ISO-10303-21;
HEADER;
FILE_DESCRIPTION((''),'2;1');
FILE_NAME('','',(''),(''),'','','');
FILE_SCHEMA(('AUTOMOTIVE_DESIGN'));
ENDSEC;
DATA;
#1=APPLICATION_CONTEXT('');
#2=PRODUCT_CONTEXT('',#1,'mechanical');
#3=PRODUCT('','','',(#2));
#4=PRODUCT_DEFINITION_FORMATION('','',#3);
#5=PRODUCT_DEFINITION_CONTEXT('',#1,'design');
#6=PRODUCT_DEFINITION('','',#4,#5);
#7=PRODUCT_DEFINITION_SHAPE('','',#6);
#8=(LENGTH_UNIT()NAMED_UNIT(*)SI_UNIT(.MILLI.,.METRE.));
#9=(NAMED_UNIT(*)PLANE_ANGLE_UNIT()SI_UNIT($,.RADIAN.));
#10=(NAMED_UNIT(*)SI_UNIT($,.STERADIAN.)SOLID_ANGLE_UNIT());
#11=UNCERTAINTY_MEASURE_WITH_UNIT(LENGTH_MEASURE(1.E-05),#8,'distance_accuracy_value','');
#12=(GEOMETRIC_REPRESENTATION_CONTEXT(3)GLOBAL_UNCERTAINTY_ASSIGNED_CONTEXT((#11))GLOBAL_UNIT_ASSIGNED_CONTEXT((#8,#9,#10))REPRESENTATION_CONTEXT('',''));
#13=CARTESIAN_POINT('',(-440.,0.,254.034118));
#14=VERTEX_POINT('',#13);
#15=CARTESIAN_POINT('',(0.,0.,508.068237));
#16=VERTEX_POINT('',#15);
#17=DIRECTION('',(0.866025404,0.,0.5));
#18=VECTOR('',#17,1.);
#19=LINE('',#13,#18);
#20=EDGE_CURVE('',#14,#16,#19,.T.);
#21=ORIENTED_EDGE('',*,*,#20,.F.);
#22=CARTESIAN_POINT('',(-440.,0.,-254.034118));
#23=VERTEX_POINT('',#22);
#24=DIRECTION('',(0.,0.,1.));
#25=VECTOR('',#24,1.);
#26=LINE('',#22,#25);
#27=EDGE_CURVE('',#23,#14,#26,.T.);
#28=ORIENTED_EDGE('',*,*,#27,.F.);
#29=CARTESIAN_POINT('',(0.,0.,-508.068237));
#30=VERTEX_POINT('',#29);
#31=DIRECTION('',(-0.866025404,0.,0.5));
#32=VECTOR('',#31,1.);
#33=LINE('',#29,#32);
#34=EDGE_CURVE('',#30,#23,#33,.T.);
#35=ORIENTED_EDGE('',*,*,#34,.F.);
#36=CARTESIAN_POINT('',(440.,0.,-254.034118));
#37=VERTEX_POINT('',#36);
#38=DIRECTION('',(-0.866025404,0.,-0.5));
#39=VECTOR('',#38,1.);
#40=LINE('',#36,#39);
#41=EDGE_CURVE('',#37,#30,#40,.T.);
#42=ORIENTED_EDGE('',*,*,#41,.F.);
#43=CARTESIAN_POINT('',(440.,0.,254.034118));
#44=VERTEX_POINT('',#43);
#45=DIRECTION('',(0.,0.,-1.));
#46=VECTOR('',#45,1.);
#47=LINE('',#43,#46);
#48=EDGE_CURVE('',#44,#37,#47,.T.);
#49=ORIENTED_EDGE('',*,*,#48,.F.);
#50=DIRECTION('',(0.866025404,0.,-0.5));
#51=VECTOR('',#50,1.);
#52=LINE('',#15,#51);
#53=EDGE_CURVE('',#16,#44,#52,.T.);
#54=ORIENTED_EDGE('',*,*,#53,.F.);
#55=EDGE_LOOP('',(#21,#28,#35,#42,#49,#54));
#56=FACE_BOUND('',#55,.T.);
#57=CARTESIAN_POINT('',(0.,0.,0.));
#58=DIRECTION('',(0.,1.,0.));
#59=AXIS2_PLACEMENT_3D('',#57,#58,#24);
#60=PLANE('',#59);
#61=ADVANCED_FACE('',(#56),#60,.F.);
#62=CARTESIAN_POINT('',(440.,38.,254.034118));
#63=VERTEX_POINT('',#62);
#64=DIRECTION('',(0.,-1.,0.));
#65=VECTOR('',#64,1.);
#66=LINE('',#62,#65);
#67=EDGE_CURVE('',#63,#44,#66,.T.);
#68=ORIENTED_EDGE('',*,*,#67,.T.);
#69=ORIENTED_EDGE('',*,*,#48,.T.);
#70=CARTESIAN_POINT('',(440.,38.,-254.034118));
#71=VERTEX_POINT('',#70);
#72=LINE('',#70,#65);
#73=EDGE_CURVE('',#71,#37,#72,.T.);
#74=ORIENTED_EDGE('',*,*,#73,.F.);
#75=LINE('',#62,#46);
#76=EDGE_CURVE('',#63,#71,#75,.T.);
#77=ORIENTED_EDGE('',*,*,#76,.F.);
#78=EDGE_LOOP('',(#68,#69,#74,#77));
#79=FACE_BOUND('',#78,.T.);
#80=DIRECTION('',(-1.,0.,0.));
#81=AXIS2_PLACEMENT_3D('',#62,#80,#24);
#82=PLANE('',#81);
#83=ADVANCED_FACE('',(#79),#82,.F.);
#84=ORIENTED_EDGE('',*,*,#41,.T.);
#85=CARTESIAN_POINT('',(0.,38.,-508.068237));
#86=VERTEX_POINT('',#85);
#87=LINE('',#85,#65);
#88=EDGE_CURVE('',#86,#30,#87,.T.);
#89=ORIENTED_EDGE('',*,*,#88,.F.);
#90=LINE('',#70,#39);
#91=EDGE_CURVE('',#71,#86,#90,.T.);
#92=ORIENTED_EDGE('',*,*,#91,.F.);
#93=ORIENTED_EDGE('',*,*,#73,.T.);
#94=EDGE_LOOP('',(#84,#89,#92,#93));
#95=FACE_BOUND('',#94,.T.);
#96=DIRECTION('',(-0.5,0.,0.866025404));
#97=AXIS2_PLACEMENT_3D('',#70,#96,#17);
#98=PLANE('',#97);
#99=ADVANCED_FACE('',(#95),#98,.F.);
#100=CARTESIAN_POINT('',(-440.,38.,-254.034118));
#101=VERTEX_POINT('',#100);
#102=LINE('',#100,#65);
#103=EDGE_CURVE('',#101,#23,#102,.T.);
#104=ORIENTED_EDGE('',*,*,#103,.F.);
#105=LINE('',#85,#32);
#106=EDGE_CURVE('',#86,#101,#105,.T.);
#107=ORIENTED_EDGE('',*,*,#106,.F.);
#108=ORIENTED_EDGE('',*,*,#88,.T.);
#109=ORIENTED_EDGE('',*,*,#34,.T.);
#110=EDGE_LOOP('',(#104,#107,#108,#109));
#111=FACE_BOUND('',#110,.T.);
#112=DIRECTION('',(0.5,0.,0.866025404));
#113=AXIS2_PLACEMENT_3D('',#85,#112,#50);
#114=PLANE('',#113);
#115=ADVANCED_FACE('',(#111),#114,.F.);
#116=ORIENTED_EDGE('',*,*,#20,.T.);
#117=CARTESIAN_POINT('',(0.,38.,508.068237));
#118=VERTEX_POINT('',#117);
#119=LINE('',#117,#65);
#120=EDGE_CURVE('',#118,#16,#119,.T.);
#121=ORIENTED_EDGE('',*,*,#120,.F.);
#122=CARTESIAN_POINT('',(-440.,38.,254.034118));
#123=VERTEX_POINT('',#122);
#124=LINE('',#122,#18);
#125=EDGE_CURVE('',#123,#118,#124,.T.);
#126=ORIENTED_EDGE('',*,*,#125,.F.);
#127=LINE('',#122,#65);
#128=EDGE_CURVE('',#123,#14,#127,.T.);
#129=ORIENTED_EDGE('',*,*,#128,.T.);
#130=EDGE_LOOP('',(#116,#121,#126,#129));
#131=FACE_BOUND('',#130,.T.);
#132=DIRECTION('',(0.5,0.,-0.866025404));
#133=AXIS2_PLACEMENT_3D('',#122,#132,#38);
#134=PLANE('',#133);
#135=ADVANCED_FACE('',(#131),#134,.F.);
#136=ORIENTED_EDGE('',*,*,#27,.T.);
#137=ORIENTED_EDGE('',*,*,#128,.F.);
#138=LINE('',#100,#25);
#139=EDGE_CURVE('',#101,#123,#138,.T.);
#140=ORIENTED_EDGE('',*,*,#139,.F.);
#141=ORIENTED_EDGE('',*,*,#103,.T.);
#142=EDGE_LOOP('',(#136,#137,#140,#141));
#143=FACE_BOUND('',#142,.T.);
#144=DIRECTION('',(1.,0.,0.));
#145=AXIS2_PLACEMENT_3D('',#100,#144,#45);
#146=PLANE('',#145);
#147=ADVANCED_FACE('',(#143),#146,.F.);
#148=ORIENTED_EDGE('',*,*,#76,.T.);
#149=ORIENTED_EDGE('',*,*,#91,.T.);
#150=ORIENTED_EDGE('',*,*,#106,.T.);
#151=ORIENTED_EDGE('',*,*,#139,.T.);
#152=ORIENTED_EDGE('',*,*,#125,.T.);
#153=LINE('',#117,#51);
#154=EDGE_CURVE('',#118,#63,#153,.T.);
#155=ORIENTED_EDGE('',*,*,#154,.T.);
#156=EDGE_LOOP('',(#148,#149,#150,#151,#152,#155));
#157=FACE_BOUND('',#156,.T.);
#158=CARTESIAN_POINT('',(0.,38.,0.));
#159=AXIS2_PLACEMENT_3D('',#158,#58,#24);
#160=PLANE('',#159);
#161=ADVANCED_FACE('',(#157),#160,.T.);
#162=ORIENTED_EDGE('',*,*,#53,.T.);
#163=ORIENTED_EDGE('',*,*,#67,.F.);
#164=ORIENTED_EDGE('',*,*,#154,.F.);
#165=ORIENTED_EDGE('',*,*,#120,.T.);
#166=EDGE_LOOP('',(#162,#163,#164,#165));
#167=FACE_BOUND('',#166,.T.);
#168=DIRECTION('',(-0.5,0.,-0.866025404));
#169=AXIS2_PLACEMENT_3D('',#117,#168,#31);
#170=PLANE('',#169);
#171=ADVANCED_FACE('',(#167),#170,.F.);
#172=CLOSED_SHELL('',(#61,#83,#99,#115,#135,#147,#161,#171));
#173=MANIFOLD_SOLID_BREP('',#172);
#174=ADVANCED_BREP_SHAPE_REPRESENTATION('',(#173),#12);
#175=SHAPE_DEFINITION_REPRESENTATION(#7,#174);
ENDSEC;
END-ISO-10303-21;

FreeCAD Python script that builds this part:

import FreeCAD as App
import Part
import Sketcher
Q = App.Units.Quantity

doc = App.newDocument("Part")
params = doc.addObject("Spreadsheet::Sheet", "Params")
for row, (alias, value) in enumerate([
    ("pad1_length", "38 mm"),
], start=1):
    params.set(f"A{row}", alias)
    params.set(f"B{row}", "=" + value)
    params.setAlias(f"B{row}", alias)

body = doc.addObject("PartDesign::Body", "Body")

# Sketch on XZ plane
sketch1 = doc.addObject("Sketcher::SketchObject", "Sketch")
body.addObject(sketch1)
sketch1.AttachmentSupport = (doc.XZ_Plane, [""])
sketch1.MapMode = "FlatFace"
sketch1.addGeometry([
    Part.LineSegment(App.Vector(440, 254.034118, 0), App.Vector(440, -254.034118, 0)),  # 0
    Part.LineSegment(App.Vector(440, -254.034118, 0), App.Vector(0, -508.068237, 0)),  # 1
    Part.LineSegment(App.Vector(0, -508.068237, 0), App.Vector(-440, -254.034118, 0)),  # 2
    Part.LineSegment(App.Vector(-440, -254.034118, 0), App.Vector(-440, 254.034118, 0)),  # 3
    Part.LineSegment(App.Vector(-440, 254.034118, 0), App.Vector(0, 508.068237, 0)),  # 4
    Part.LineSegment(App.Vector(0, 508.068237, 0), App.Vector(440, 254.034118, 0)),  # 5
], False)
sketch1.addConstraint([
    Sketcher.Constraint("Coincident", 0, 2, 1, 1),
    Sketcher.Constraint("Coincident", 1, 2, 2, 1),
    Sketcher.Constraint("Coincident", 2, 2, 3, 1),
    Sketcher.Constraint("Coincident", 3, 2, 4, 1),
    Sketcher.Constraint("Coincident", 4, 2, 5, 1),
    Sketcher.Constraint("Coincident", 5, 2, 0, 1),
    Sketcher.Constraint("Vertical", 0),
    Sketcher.Constraint("Vertical", 3),
    Sketcher.Constraint("Symmetric", 0, 2, 3, 2, -1, 1),
    Sketcher.Constraint("Symmetric", 1, 2, 4, 2, -1, 1),
    Sketcher.Constraint("PointOnObject", 1, 2, -2),
    Sketcher.Constraint("Parallel", 2, 5),
    Sketcher.Constraint("Horizontal", 0, 2, 2, 2),
    Sketcher.Constraint("Angle", 1, Q("-150 deg")),
    Sketcher.Constraint("DistanceX", -1, 1, 0, 2, Q("440 mm")),
    Sketcher.Constraint("DistanceY", 0, 2, 0, 1, Q("508.068237 mm")),
])
pad1 = doc.addObject("PartDesign::Pad", "Pad")
body.addObject(pad1)
pad1.Profile = sketch1
pad1.setExpression("Length", "Params.pad1_length")
pad1.Reversed = True

doc.recompute()
